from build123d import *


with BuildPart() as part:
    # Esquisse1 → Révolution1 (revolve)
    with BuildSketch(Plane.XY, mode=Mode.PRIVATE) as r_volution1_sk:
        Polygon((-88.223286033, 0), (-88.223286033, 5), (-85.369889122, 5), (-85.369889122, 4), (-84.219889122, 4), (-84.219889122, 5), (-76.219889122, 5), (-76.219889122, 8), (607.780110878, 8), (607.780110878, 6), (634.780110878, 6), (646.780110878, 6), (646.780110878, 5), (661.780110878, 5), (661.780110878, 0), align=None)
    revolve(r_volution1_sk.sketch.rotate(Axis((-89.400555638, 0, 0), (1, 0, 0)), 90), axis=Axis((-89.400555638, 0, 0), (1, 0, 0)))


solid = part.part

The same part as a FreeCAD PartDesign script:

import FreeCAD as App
import Part
import Sketcher
from FreeCAD import Vector
Q = App.Units.Quantity


def add_polygon(sketch, points):
    """Adds a closed chain of lines whose ends are joined by coincident constraints."""
    first, n = sketch.GeometryCount, len(points)
    for a, b in zip(points, points[1:] + points[:1]):
        sketch.addGeometry(Part.LineSegment(App.Vector(*a, 0), App.Vector(*b, 0)), False)
    for i in range(n):
        sketch.addConstraint(Sketcher.Constraint("Coincident", first + i, 2, first + (i + 1) % n, 1))

doc = App.newDocument("Part")
body = doc.addObject("PartDesign::Body", "Body")

# Sketch on XY plane
sketch1 = doc.addObject("Sketcher::SketchObject", "Sketch")
body.addObject(sketch1)
sketch1.AttachmentSupport = (doc.XY_Plane, [""])
sketch1.MapMode = "FlatFace"
add_polygon(sketch1, [(-88.223286, 5), (-88.223286, 0), (661.780111, 0), (661.780111, 5), (646.780111, 5), (646.780111, 6), (607.780111, 6), (607.780111, 8), (-76.219889, 8), (-76.219889, 5), (-84.219889, 5), (-84.219889, 4), (-85.369889, 4), (-85.369889, 5)])  # lines 0-13
sketch1.addConstraint([
    Sketcher.Constraint("Vertical", 0),
    Sketcher.Constraint("Horizontal", 1),
    Sketcher.Constraint("Vertical", 2),
    Sketcher.Constraint("Horizontal", 3),
    Sketcher.Constraint("Vertical", 4),
    Sketcher.Constraint("Horizontal", 5),
    Sketcher.Constraint("Vertical", 6),
    Sketcher.Constraint("Horizontal", 7),
    Sketcher.Constraint("Vertical", 8),
    Sketcher.Constraint("Horizontal", 9),
    Sketcher.Constraint("Vertical", 10),
    Sketcher.Constraint("Horizontal", 11),
    Sketcher.Constraint("Vertical", 12),
    Sketcher.Constraint("Horizontal", 13),
    Sketcher.Constraint("PointOnObject", 0, 2, -1),
    Sketcher.Constraint("Horizontal", 3, 2, 8, 2),
    Sketcher.Constraint("Horizontal", 9, 2, 12, 2),
    Sketcher.Constraint("Equal", 4, 10),
    Sketcher.Constraint("DistanceX", 3, 2, 3, 1, Q("15 mm")),
    Sketcher.Constraint("DistanceX", 5, 2, 5, 1, Q("39 mm")),
    Sketcher.Constraint("DistanceX", 7, 2, 7, 1, Q("684 mm")),
    Sketcher.Constraint("DistanceX", 9, 2, 9, 1, Q("8 mm")),
    Sketcher.Constraint("DistanceY", 0, 2, 0, 1, Q("5 mm")),
    Sketcher.Constraint("DistanceY", 4, 1, 4, 2, Q("1 mm")),
    Sketcher.Constraint("DistanceY", 6, 1, 6, 2, Q("2 mm")),
    Sketcher.Constraint("DistanceX", 11, 2, 11, 1, Q("1.15 mm")),
    Sketcher.Constraint("DistanceX", 1, 1, 1, 2, Q("750.003397 mm")),
    Sketcher.Constraint("DistanceX", -1, 1, 1, 2, Q("661.780111 mm")),
])
revolution = doc.addObject("PartDesign::Revolution", "Revolution")
body.addObject(revolution)
revolution.Profile = sketch1
revolution.ReferenceAxis = (sketch1, ["H_Axis"])
revolution.Angle = 360

doc.recompute()
